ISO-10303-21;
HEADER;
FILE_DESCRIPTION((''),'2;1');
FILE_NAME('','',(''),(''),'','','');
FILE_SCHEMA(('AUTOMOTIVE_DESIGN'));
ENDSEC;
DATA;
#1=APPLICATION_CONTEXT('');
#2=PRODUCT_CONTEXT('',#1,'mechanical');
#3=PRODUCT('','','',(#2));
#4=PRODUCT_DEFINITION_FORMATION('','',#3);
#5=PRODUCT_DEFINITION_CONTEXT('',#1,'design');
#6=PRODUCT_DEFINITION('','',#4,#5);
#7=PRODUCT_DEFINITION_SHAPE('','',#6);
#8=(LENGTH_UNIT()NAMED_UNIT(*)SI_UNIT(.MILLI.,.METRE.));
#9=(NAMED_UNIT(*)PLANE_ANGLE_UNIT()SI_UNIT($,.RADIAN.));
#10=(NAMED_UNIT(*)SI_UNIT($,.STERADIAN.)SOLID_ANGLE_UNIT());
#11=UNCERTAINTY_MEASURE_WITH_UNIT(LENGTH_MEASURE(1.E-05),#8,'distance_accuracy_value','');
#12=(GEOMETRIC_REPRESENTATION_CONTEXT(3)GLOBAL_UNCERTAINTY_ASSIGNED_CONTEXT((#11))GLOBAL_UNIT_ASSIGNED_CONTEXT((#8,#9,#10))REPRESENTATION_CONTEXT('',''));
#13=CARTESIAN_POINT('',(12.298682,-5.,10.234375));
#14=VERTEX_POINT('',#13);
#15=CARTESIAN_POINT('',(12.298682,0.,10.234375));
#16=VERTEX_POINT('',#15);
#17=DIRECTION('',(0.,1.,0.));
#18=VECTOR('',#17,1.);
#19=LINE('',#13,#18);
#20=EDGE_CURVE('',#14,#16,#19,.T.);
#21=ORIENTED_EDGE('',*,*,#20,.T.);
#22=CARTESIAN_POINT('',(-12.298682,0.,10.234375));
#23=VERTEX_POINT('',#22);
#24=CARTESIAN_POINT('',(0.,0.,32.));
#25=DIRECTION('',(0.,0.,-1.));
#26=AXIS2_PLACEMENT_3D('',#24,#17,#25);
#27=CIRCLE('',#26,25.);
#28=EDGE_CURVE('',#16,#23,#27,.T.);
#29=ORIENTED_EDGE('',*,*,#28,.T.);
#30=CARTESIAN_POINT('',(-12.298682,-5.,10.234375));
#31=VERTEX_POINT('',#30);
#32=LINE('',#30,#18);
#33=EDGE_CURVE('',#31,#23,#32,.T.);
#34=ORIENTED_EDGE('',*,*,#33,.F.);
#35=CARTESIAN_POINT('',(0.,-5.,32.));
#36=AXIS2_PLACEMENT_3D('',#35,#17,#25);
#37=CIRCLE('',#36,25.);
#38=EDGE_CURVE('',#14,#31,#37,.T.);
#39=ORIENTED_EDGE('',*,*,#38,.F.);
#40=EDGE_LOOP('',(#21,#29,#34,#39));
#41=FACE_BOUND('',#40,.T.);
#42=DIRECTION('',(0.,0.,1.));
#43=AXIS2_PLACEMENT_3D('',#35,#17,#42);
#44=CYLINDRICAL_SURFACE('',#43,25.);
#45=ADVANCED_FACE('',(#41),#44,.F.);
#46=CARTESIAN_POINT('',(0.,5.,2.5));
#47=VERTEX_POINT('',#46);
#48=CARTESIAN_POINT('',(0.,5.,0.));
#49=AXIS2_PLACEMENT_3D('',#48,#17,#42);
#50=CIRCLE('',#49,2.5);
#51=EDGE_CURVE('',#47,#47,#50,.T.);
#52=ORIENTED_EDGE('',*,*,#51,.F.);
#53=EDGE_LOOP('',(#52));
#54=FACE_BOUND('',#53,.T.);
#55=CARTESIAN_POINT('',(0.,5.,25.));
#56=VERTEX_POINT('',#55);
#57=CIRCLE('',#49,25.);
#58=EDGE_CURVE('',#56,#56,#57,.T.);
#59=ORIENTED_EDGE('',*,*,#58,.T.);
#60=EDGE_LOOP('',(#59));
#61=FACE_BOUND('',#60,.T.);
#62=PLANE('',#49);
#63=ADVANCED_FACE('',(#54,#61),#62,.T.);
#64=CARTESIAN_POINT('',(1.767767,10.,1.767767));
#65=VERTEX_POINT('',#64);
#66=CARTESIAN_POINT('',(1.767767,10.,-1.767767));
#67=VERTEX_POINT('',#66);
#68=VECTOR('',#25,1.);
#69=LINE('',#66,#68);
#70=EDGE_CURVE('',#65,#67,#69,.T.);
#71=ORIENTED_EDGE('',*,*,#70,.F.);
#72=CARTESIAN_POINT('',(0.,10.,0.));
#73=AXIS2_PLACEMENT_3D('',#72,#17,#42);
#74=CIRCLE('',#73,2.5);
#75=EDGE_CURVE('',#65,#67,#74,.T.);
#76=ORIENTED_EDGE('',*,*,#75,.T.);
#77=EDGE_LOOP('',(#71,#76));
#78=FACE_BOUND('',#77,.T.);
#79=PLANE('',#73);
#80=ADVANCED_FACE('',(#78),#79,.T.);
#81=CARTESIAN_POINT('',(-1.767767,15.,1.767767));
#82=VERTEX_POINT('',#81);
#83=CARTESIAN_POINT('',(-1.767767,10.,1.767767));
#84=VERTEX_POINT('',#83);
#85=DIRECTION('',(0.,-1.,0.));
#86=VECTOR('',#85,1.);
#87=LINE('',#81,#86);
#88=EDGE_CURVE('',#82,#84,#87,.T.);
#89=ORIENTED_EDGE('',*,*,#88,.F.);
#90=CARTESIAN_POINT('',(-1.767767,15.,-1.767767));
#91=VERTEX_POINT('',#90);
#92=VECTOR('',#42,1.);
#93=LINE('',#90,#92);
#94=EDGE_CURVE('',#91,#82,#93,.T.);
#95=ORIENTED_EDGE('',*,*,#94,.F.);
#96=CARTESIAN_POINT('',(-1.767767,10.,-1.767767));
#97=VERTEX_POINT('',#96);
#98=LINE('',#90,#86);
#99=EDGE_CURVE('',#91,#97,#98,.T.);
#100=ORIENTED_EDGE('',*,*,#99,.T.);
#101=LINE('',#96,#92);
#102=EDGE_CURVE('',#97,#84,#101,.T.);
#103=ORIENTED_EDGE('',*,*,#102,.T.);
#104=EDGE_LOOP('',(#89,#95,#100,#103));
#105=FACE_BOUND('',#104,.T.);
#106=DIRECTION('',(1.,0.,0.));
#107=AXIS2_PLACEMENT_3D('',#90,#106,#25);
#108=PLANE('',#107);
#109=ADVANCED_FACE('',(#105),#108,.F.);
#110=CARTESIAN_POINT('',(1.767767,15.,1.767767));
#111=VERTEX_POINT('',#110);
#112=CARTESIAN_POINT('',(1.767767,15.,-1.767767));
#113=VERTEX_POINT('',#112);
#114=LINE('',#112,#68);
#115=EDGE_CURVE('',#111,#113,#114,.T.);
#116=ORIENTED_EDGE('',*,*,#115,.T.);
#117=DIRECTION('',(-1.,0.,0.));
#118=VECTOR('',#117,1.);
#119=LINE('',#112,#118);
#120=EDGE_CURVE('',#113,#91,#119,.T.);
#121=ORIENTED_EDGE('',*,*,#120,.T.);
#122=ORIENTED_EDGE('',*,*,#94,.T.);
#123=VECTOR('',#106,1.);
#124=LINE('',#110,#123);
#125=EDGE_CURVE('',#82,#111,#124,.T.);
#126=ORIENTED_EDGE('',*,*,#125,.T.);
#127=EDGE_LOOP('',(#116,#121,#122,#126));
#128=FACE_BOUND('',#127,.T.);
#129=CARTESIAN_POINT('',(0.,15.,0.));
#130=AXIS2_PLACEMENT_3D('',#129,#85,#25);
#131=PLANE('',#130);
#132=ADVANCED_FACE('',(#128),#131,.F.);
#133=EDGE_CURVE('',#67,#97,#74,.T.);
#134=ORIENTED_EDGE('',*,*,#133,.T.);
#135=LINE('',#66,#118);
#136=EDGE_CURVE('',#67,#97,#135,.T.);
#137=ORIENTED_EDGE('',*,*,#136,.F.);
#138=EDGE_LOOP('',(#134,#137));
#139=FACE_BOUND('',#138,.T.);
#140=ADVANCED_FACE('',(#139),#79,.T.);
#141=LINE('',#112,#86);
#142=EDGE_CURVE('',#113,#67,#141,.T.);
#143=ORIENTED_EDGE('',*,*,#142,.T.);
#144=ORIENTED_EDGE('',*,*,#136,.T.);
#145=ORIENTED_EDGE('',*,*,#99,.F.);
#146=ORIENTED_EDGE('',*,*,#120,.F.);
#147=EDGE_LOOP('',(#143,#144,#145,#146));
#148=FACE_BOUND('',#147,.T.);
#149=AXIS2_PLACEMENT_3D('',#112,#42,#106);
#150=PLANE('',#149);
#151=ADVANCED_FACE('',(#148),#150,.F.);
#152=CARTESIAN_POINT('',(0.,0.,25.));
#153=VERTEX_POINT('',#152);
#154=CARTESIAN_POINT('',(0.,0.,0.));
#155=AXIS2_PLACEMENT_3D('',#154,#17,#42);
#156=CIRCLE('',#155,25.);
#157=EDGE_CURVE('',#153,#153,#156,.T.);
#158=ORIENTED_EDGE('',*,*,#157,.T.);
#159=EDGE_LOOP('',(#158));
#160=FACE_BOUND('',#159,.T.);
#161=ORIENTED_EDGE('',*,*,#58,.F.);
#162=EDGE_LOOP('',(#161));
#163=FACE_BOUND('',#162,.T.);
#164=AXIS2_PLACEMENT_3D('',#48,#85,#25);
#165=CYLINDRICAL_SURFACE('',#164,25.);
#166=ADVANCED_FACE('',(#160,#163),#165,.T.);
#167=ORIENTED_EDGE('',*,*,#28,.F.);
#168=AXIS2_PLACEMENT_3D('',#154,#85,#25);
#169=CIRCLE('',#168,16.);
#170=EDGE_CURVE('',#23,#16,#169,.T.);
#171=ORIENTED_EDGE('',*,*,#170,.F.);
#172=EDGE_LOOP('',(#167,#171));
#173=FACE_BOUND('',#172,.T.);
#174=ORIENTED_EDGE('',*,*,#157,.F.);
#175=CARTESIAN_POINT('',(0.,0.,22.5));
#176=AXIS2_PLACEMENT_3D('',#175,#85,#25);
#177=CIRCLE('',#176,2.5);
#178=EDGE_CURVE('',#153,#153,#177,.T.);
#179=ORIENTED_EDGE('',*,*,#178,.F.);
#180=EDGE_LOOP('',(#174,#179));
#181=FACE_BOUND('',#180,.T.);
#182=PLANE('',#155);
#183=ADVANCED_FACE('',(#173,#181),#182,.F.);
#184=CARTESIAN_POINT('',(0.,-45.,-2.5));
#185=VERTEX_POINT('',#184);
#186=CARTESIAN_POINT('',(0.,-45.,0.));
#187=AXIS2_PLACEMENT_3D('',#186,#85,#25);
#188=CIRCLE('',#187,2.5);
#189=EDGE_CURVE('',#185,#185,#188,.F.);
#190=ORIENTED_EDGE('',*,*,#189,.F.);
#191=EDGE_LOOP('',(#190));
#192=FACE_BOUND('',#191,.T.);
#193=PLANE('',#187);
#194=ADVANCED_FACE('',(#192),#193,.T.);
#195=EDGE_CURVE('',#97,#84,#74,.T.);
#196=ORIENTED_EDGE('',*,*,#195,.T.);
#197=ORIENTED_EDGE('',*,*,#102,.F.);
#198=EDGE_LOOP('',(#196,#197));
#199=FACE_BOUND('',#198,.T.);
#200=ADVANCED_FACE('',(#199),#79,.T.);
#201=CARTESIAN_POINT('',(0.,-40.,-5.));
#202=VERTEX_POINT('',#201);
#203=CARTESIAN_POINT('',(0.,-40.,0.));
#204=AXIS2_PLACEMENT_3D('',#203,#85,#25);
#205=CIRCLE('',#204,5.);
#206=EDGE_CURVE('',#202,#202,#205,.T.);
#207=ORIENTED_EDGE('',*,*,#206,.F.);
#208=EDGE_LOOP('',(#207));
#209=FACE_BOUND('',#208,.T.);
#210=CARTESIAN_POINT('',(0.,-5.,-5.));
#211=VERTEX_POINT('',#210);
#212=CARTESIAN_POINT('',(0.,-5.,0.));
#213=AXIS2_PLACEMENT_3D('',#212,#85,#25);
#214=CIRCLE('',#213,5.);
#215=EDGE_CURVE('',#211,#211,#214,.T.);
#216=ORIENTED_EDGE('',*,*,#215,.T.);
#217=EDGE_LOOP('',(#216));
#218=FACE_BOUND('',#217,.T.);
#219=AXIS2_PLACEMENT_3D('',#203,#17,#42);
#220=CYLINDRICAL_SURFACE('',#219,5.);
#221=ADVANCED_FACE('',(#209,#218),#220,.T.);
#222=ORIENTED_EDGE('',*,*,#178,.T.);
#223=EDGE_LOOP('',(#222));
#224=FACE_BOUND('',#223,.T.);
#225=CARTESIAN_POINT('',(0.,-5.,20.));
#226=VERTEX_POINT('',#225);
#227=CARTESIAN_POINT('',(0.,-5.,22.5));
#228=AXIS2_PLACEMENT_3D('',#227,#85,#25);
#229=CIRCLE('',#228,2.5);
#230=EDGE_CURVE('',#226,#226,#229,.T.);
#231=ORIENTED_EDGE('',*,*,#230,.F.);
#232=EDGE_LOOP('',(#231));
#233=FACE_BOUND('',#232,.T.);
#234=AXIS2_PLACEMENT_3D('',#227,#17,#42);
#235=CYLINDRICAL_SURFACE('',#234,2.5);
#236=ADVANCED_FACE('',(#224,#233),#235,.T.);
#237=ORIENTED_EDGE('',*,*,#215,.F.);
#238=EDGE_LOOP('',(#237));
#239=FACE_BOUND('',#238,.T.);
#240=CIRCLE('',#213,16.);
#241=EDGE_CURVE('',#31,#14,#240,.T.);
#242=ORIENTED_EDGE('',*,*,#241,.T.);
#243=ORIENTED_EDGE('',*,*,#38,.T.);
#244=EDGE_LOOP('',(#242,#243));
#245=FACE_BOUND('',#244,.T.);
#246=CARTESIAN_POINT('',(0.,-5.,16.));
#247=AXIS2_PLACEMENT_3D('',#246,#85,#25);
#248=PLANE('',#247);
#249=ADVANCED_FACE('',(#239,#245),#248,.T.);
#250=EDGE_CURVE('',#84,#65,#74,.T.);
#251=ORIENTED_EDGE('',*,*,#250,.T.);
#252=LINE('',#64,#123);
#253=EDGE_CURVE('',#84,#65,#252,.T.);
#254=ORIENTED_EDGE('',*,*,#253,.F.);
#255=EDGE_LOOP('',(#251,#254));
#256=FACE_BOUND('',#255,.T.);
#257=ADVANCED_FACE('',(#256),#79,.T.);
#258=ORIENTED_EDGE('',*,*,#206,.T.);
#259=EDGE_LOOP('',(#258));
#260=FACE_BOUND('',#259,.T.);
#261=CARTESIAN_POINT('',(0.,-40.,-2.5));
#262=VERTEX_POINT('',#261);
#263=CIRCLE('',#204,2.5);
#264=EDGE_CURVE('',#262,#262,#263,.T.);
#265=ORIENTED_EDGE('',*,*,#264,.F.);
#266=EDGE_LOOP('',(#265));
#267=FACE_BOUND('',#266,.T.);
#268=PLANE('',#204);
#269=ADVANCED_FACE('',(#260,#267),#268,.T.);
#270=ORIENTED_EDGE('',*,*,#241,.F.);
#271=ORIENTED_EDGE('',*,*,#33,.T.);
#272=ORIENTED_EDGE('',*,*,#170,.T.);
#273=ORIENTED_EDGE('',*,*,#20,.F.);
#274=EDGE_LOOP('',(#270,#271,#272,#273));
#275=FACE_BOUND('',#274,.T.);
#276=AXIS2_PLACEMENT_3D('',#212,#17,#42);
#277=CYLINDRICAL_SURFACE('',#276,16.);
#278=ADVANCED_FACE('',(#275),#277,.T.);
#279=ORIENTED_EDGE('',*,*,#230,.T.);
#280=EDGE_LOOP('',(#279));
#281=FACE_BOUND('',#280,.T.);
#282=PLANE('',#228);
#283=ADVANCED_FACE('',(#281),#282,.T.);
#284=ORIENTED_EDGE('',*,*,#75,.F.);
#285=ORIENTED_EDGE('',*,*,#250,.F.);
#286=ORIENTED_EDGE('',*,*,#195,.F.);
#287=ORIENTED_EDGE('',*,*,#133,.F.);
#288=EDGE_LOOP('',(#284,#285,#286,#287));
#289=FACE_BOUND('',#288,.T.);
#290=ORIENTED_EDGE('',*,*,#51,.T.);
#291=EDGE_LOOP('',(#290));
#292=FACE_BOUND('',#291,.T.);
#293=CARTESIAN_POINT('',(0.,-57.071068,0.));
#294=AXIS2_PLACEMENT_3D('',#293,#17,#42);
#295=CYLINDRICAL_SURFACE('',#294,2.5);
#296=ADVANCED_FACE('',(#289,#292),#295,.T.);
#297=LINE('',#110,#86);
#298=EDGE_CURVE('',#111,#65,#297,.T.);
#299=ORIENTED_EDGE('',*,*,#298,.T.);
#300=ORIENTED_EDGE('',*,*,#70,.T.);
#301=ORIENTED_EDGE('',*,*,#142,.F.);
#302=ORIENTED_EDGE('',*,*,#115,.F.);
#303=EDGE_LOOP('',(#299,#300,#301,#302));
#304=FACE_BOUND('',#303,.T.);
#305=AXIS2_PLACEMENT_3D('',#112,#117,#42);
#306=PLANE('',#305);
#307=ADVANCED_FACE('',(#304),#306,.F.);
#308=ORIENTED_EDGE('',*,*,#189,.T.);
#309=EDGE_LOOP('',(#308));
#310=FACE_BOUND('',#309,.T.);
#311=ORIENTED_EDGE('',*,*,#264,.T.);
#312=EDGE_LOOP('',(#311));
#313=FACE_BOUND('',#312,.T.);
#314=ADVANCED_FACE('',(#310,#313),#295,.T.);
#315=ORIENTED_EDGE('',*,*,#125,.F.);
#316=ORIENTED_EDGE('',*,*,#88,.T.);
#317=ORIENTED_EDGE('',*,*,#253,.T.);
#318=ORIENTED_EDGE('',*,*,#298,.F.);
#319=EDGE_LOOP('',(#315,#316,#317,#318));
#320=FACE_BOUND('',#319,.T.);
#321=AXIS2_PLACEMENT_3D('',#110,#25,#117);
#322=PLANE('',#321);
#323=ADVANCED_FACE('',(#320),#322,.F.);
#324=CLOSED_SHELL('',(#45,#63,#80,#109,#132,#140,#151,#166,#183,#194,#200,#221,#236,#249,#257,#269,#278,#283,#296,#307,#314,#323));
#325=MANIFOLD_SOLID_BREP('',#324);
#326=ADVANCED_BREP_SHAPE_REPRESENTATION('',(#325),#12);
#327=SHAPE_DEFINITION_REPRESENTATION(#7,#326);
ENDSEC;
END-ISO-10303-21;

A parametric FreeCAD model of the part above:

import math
import FreeCAD as App
import Part
import Sketcher

V = App.Vector
Q = App.Units.Quantity

doc = App.newDocument("Part")
body = doc.addObject("PartDesign::Body", "Body")

sketch1 = doc.addObject("Sketcher::SketchObject", "Sketch")
body.addObject(sketch1)
sketch1.AttachmentSupport = (doc.XZ_Plane, [""])
sketch1.MapMode = "FlatFace"
sketch1.addGeometry(Part.Circle(V(0, 0, 0), V(0, 0, 1), 25), False)
sketch1.addGeometry(Part.Circle(V(0, 0, 0), V(0, 0, 1), 2.5), False)
sketch1.addConstraint(Sketcher.Constraint("Coincident", 0, 3, -1, 1))
sketch1.addConstraint(Sketcher.Constraint("Coincident", 1, 3, -1, 1))
sketch1.addConstraint(Sketcher.Constraint("Diameter", 0, Q("50 mm")))
sketch1.addConstraint(Sketcher.Constraint("Diameter", 1, Q("5 mm")))
pad1 = doc.addObject("PartDesign::Pad", "Pad")
body.addObject(pad1)
pad1.Profile = sketch1
pad1.Length = 5
pad1.Reversed = True

sketch2 = doc.addObject("Sketcher::SketchObject", "Sketch001")
body.addObject(sketch2)
sketch2.AttachmentSupport = (doc.XZ_Plane, [""])
sketch2.MapMode = "FlatFace"
sketch2.addGeometry(Part.Circle(V(0, 22.5, 0), V(0, 0, 1), 2.5), False)
sketch2.addConstraint(Sketcher.Constraint("PointOnObject", 0, 3, -2))
sketch2.addConstraint(Sketcher.Constraint("Diameter", 0, Q("5 mm")))
sketch2.addConstraint(Sketcher.Constraint("DistanceY", -1, 1, 0, 3, Q("22.5 mm")))
pad2 = doc.addObject("PartDesign::Pad", "Pad001")
body.addObject(pad2)
pad2.Profile = sketch2
pad2.Length = 5

sketch3 = doc.addObject("Sketcher::SketchObject", "Sketch002")
body.addObject(sketch3)
sketch3.AttachmentSupport = (doc.XZ_Plane, [""])
sketch3.MapMode = "FlatFace"
sketch3.AttachmentOffset = App.Placement(V(0, 0, 5), App.Rotation())
sketch3.addGeometry(Part.ArcOfCircle(Part.Circle(V(0, 0, 0), V(0, 0, 1), 16), math.radians(140), math.radians(400)), False)
sketch3.addGeometry(Part.ArcOfCircle(Part.Circle(V(0, 32, 0), V(0, 0, 1), 25), math.radians(-119), math.radians(-61)), False)
sketch3.addGeometry(Part.Circle(V(0, 0, 0), V(0, 0, 1), 2.5), False)
sketch3.addConstraint(Sketcher.Constraint("Coincident", 0, 1, 1, 1))
sketch3.addConstraint(Sketcher.Constraint("Coincident", 1, 2, 0, 2))
sketch3.addConstraint(Sketcher.Constraint("Coincident", 0, 3, -1, 1))
sketch3.addConstraint(Sketcher.Constraint("Coincident", 2, 3, -1, 1))
sketch3.addConstraint(Sketcher.Constraint("PointOnObject", 1, 3, -2))
sketch3.addConstraint(Sketcher.Constraint("Diameter", 2, Q("5 mm")))
sketch3.addConstraint(Sketcher.Constraint("Radius", 0, Q("16 mm")))
sketch3.addConstraint(Sketcher.Constraint("Radius", 1, Q("25 mm")))
sketch3.addConstraint(Sketcher.Constraint("DistanceY", -1, 1, 1, 3, Q("32 mm")))
pad3 = doc.addObject("PartDesign::Pad", "Pad002")
body.addObject(pad3)
pad3.Profile = sketch3
pad3.Length = 5
pad3.Reversed = True

sketch4 = doc.addObject("Sketcher::SketchObject", "Sketch003")
body.addObject(sketch4)
sketch4.AttachmentSupport = (doc.XZ_Plane, [""])
sketch4.MapMode = "FlatFace"
sketch4.AttachmentOffset = App.Placement(V(0, 0, 40), App.Rotation())
sketch4.addGeometry(Part.Circle(V(0, 0, 0), V(0, 0, 1), 5), False)
sketch4.addGeometry(Part.Circle(V(0, 0, 0), V(0, 0, 1), 2.5), False)
sketch4.addConstraint(Sketcher.Constraint("Coincident", 0, 3, -1, 1))
sketch4.addConstraint(Sketcher.Constraint("Coincident", 1, 3, -1, 1))
sketch4.addConstraint(Sketcher.Constraint("Diameter", 0, Q("10 mm")))
sketch4.addConstraint(Sketcher.Constraint("Diameter", 1, Q("5 mm")))
pad4 = doc.addObject("PartDesign::Pad", "Pad003")
body.addObject(pad4)
pad4.Profile = sketch4
pad4.Length = 35
pad4.Reversed = True

sketch5 = doc.addObject("Sketcher::SketchObject", "Sketch004")
body.addObject(sketch5)
sketch5.AttachmentSupport = (doc.XZ_Plane, [""])
sketch5.MapMode = "FlatFace"
sketch5.AttachmentOffset = App.Placement(V(0, 0, 45), App.Rotation())
sketch5.addGeometry(Part.Circle(V(0, 0, 0), V(0, 0, 1), 2.5), False)
sketch5.addConstraint(Sketcher.Constraint("Coincident", 0, 3, -1, 1))
sketch5.addConstraint(Sketcher.Constraint("Diameter", 0, Q("5 mm")))
pad5 = doc.addObject("PartDesign::Pad", "Pad004")
body.addObject(pad5)
pad5.Profile = sketch5
pad5.Length = 55
pad5.Reversed = True

sketch6 = doc.addObject("Sketcher::SketchObject", "Sketch005")
body.addObject(sketch6)
sketch6.AttachmentSupport = (doc.XZ_Plane, [""])
sketch6.MapMode = "FlatFace"
sketch6.AttachmentOffset = App.Placement(V(0, 0, -10), App.Rotation())
sketch6.addGeometry(Part.LineSegment(V(-1.8, -1.8, 0), V(-1.8, 1.8, 0)), False)
sketch6.addGeometry(Part.LineSegment(V(-1.8, 1.8, 0), V(1.8, 1.8, 0)), False)
sketch6.addGeometry(Part.LineSegment(V(1.8, 1.8, 0), V(1.8, -1.8, 0)), False)
sketch6.addGeometry(Part.LineSegment(V(1.8, -1.8, 0), V(-1.8, -1.8, 0)), False)
sketch6.addConstraint(Sketcher.Constraint("Coincident", 0, 2, 1, 1))
sketch6.addConstraint(Sketcher.Constraint("Coincident", 1, 2, 2, 1))
sketch6.addConstraint(Sketcher.Constraint("Coincident", 2, 2, 3, 1))
sketch6.addConstraint(Sketcher.Constraint("Coincident", 3, 2, 0, 1))
sketch6.addConstraint(Sketcher.Constraint("Vertical", 0))
sketch6.addConstraint(Sketcher.Constraint("Horizontal", 1))
sketch6.addConstraint(Sketcher.Constraint("Vertical", 2))
sketch6.addConstraint(Sketcher.Constraint("Horizontal", 3))
sketch6.addConstraint(Sketcher.Constraint("Symmetric", 0, 2, 2, 2, -1, 1))
sketch6.addConstraint(Sketcher.Constraint("Equal", 3, 0))
sketch6.addConstraint(Sketcher.Constraint("DistanceX", 1, 1, 1, 2, Q("3.535534 mm")))
pad6 = doc.addObject("PartDesign::Pad", "Pad005")
body.addObject(pad6)
pad6.Profile = sketch6
pad6.Length = 5
pad6.Reversed = True

doc.recompute()
